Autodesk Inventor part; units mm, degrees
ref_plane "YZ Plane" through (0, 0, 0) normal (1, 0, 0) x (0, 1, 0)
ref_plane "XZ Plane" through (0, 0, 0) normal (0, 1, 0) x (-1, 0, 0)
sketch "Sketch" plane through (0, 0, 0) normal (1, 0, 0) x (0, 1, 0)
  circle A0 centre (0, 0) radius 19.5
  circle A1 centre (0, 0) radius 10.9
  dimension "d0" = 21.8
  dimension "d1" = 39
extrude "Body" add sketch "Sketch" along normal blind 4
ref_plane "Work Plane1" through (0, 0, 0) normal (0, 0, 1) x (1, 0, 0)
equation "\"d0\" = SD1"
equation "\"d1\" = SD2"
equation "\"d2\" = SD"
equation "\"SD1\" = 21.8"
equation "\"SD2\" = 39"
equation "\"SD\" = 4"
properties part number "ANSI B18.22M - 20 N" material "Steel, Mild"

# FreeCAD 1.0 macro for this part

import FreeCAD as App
import Part
import Sketcher
Q = App.Units.Quantity

doc = App.newDocument("Part")
body = doc.addObject("PartDesign::Body", "Body")

# Sketch on YZ plane
sketch1 = doc.addObject("Sketcher::SketchObject", "Sketch")
body.addObject(sketch1)
sketch1.AttachmentSupport = (doc.YZ_Plane, [""])
sketch1.MapMode = "FlatFace"
sketch1.addGeometry([
    Part.Circle(App.Vector(0, 0, 0), App.Vector(0, 0, 1), 20),
    Part.Circle(App.Vector(0, 0, 0), App.Vector(0, 0, 1), 11),
], False)
sketch1.addConstraint([
    Sketcher.Constraint("Coincident", 0, 3, -1, 1),
    Sketcher.Constraint("Coincident", 1, 3, -1, 1),
    Sketcher.Constraint("Diameter", 0, Q("39 mm")),
    Sketcher.Constraint("Diameter", 1, Q("21.8 mm")),
])
pad1 = doc.addObject("PartDesign::Pad", "Pad")
body.addObject(pad1)
pad1.Profile = sketch1
pad1.Length = 4

doc.recompute()
